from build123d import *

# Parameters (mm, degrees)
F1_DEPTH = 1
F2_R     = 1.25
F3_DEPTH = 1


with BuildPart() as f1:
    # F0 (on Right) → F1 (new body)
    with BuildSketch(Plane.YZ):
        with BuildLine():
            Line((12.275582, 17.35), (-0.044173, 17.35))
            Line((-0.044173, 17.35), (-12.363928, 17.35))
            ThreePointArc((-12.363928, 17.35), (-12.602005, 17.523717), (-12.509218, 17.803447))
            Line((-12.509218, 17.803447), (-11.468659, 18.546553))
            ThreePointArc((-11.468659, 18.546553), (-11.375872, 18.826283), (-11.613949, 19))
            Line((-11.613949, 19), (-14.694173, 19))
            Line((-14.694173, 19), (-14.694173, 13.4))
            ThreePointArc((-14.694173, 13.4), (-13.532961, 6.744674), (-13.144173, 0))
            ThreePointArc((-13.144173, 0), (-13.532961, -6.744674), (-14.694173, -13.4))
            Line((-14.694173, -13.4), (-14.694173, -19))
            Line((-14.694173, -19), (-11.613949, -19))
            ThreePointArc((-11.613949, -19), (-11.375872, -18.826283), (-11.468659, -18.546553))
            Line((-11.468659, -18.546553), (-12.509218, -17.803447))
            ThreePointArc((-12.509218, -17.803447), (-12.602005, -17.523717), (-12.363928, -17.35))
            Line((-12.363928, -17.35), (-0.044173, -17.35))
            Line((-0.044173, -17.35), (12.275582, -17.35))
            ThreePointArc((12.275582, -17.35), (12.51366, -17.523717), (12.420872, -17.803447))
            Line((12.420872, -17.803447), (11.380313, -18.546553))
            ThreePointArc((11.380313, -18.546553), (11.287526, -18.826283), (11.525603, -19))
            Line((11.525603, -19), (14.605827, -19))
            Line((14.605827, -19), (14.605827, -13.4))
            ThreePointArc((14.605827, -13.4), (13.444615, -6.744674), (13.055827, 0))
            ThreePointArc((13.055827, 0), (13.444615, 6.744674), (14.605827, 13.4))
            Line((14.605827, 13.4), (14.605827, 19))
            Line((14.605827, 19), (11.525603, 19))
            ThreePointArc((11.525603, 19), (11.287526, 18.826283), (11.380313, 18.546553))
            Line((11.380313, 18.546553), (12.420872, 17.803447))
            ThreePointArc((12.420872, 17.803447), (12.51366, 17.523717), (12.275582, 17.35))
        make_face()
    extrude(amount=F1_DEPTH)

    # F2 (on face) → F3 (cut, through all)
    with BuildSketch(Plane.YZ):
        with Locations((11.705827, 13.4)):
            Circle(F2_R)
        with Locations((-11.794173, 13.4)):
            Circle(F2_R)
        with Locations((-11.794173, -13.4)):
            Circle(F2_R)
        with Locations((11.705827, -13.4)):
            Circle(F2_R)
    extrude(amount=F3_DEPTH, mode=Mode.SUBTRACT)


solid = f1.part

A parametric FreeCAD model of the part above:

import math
import FreeCAD as App
import Part
import Sketcher
from FreeCAD import Vector
Q = App.Units.Quantity

doc = App.newDocument("Part")
body = doc.addObject("PartDesign::Body", "Body")

# Sketch on YZ plane
sketch1 = doc.addObject("Sketcher::SketchObject", "Sketch")
body.addObject(sketch1)
sketch1.AttachmentSupport = (doc.YZ_Plane, [""])
sketch1.MapMode = "FlatFace"
sketch1.addGeometry([
    Part.LineSegment(Vector(12.275582, 17.35, 0), Vector(-12.363928, 17.35, 0)),  # 0
    Part.ArcOfCircle(Part.Circle(Vector(-12.363927, 17.6, 0), Vector(0, 0, 1), 0.25), math.radians(125.532319), math.radians(269.999878)),  # 1
    Part.LineSegment(Vector(-12.509218, 17.803447, 0), Vector(-11.468659, 18.546553, 0)),  # 2
    Part.ArcOfCircle(Part.Circle(Vector(-11.61395, 18.75, 0), Vector(0, 0, 1), 0.25), math.radians(-54.467681), math.radians(89.999878)),  # 3
    Part.LineSegment(Vector(-11.613949, 19, 0), Vector(-14.694173, 19, 0)),  # 4
    Part.LineSegment(Vector(-14.694173, 19, 0), Vector(-14.694173, 13.4, 0)),  # 5
    Part.ArcOfCircle(Part.Circle(Vector(-71.841813, -0.000007, 0), Vector(0, 0, 1), 58.69764), math.radians(0.000007), math.radians(13.19634)),  # 6
    Part.ArcOfCircle(Part.Circle(Vector(-71.841813, 0.000007, 0), Vector(0, 0, 1), 58.69764), math.radians(-13.19634), math.radians(-0.000007)),  # 7
    Part.LineSegment(Vector(-14.694173, -13.4, 0), Vector(-14.694173, -19, 0)),  # 8
    Part.LineSegment(Vector(-14.694173, -19, 0), Vector(-11.613949, -19, 0)),  # 9
    Part.ArcOfCircle(Part.Circle(Vector(-11.61395, -18.75, 0), Vector(0, 0, 1), 0.25), math.radians(-89.999878), math.radians(54.467681)),  # 10
    Part.LineSegment(Vector(-11.468659, -18.546553, 0), Vector(-12.509218, -17.803447, 0)),  # 11
    Part.ArcOfCircle(Part.Circle(Vector(-12.363927, -17.6, 0), Vector(0, 0, 1), 0.25), math.radians(90.000122), math.radians(234.467681)),  # 12
    Part.LineSegment(Vector(-12.363928, -17.35, 0), Vector(12.275582, -17.35, 0)),  # 13
    Part.ArcOfCircle(Part.Circle(Vector(12.275583, -17.6, 0), Vector(0, 0, 1), 0.25), math.radians(-54.46798), math.radians(90.000177)),  # 14
    Part.LineSegment(Vector(12.420872, -17.803447, 0), Vector(11.380313, -18.546553, 0)),  # 15
    Part.ArcOfCircle(Part.Circle(Vector(11.525604, -18.75, 0), Vector(0, 0, 1), 0.25), math.radians(125.532319), math.radians(269.999878)),  # 16
    Part.LineSegment(Vector(11.525603, -19, 0), Vector(14.605827, -19, 0)),  # 17
    Part.LineSegment(Vector(14.605827, -19, 0), Vector(14.605827, -13.4, 0)),  # 18
    Part.ArcOfCircle(Part.Circle(Vector(71.753467, 0.000007, 0), Vector(0, 0, 1), 58.69764), math.radians(-179.999993), math.radians(-166.80366)),  # 19
    Part.ArcOfCircle(Part.Circle(Vector(71.753467, -0.000007, 0), Vector(0, 0, 1), 58.69764), math.radians(166.80366), math.radians(179.999993)),  # 20
    Part.LineSegment(Vector(14.605827, 13.4, 0), Vector(14.605827, 19, 0)),  # 21
    Part.LineSegment(Vector(14.605827, 19, 0), Vector(11.525603, 19, 0)),  # 22
    Part.ArcOfCircle(Part.Circle(Vector(11.525604, 18.75, 0), Vector(0, 0, 1), 0.25), math.radians(90.000122), math.radians(234.467681)),  # 23
    Part.LineSegment(Vector(11.380313, 18.546553, 0), Vector(12.420872, 17.803447, 0)),  # 24
    Part.ArcOfCircle(Part.Circle(Vector(12.275583, 17.6, 0), Vector(0, 0, 1), 0.25), math.radians(-90.000177), math.radians(54.46798)),  # 25
], False)
sketch1.addConstraint([
    Sketcher.Constraint("Coincident", 0, 2, 1, 2),
    Sketcher.Constraint("Coincident", 1, 1, 2, 1),
    Sketcher.Constraint("Coincident", 2, 2, 3, 1),
    Sketcher.Constraint("Coincident", 3, 2, 4, 1),
    Sketcher.Constraint("Coincident", 4, 2, 5, 1),
    Sketcher.Constraint("Coincident", 5, 2, 6, 2),
    Sketcher.Constraint("Tangent", 6, 1, 7, 2),
    Sketcher.Constraint("Coincident", 7, 1, 8, 1),
    Sketcher.Constraint("Coincident", 8, 2, 9, 1),
    Sketcher.Constraint("Coincident", 9, 2, 10, 1),
    Sketcher.Constraint("Coincident", 10, 2, 11, 1),
    Sketcher.Constraint("Coincident", 11, 2, 12, 2),
    Sketcher.Constraint("Coincident", 12, 1, 13, 1),
    Sketcher.Constraint("Coincident", 13, 2, 14, 2),
    Sketcher.Constraint("Coincident", 14, 1, 15, 1),
    Sketcher.Constraint("Coincident", 15, 2, 16, 1),
    Sketcher.Constraint("Coincident", 16, 2, 17, 1),
    Sketcher.Constraint("Coincident", 17, 2, 18, 1),
    Sketcher.Constraint("Coincident", 18, 2, 19, 2),
    Sketcher.Constraint("Tangent", 19, 1, 20, 2),
    Sketcher.Constraint("Coincident", 20, 1, 21, 1),
    Sketcher.Constraint("Coincident", 21, 2, 22, 1),
    Sketcher.Constraint("Coincident", 22, 2, 23, 1),
    Sketcher.Constraint("Coincident", 23, 2, 24, 1),
    Sketcher.Constraint("Coincident", 24, 2, 25, 2),
    Sketcher.Constraint("Coincident", 25, 1, 0, 1),
    Sketcher.Constraint("Horizontal", 0),
    Sketcher.Constraint("Horizontal", 4),
    Sketcher.Constraint("Vertical", 5),
    Sketcher.Constraint("Vertical", 8),
    Sketcher.Constraint("Horizontal", 9),
    Sketcher.Constraint("Horizontal", 13),
    Sketcher.Constraint("Horizontal", 17),
    Sketcher.Constraint("Vertical", 18),
    Sketcher.Constraint("Vertical", 21),
    Sketcher.Constraint("Horizontal", 22),
    Sketcher.Constraint("Equal", 1, 3),
    Sketcher.Constraint("Equal", 6, 7),
    Sketcher.Constraint("Equal", 3, 10),
    Sketcher.Constraint("Equal", 10, 12),
    Sketcher.Constraint("Equal", 12, 14),
    Sketcher.Constraint("Equal", 14, 16),
    Sketcher.Constraint("Equal", 7, 19),
    Sketcher.Constraint("Equal", 19, 20),
    Sketcher.Constraint("Equal", 16, 23),
    Sketcher.Constraint("Equal", 23, 25),
    Sketcher.Constraint("Symmetric", 3, 3, 10, 3, -1),
    Sketcher.Constraint("Symmetric", 1, 3, 12, 3, -1),
    Sketcher.Constraint("Symmetric", 16, 3, 23, 3, -1),
    Sketcher.Constraint("Symmetric", 5, 2, 7, 1, -1),
    Sketcher.Constraint("Symmetric", 18, 2, 20, 1, -1),
    Sketcher.Constraint("Symmetric", 14, 1, 24, 2, -1),
    Sketcher.Constraint("PointOnObject", 6, 1, -1),
    Sketcher.Constraint("PointOnObject", 19, 1, -1),
    Sketcher.Constraint("Parallel", 2, 15),
    Sketcher.Constraint("Horizontal", 10, 3, 16, 3),
    Sketcher.Constraint("Horizontal", 11, 2, 14, 1),
    Sketcher.Constraint("Horizontal", 10, 2, 15, 2),
    Sketcher.Constraint("Horizontal", 7, 1, 18, 2),
    Sketcher.Constraint("Horizontal", 2, 2, 23, 2),
    Sketcher.Constraint("Horizontal", 1, 1, 24, 2),
    Sketcher.Constraint("Vertical", 12, 3, 0, 2),
    Sketcher.Constraint("Vertical", 10, 3, 3, 2),
    Sketcher.Constraint("Vertical", 3, 2, 9, 2),
    Sketcher.Constraint("Vertical", 2, 2, 10, 2),
    Sketcher.Constraint("Vertical", 0, 2, 12, 1),
    Sketcher.Constraint("Vertical", 25, 3, 13, 2),
    Sketcher.Constraint("Vertical", 23, 3, 16, 2),
    Sketcher.Constraint("Vertical", 16, 2, 22, 2),
    Sketcher.Constraint("Vertical", 13, 2, 25, 1),
    Sketcher.Constraint("Equal", 9, 17),
    Sketcher.Constraint("Radius", 1, Q("0.25 mm")),
    Sketcher.Constraint("DistanceY", 5, 2, 5, 1, Q("5.6 mm")),
    Sketcher.Constraint("DistanceY", -1, 1, 3, 2, Q("19 mm")),
    Sketcher.Constraint("DistanceY", -1, 1, 1, 3, Q("17.6 mm")),
    Sketcher.Constraint("Radius", 6, Q("58.69764 mm")),
    Sketcher.Constraint("DistanceX", 0, 2, 0, 1, Q("24.63951 mm")),
    Sketcher.Constraint("DistanceX", 1, 1, 25, 3, Q("24.784801 mm")),
    Sketcher.Constraint("Distance", 2, Q("1.278659 mm")),
    Sketcher.Constraint("DistanceX", 4, 2, 4, 1, Q("3.080224 mm")),
    Sketcher.Constraint("DistanceX", 3, 3, -1, 1, Q("11.61395 mm")),
    Sketcher.Constraint("DistanceX", 1, 1, -1, 1, Q("12.509218 mm")),
])
pad1 = doc.addObject("PartDesign::Pad", "Pad")
body.addObject(pad1)
pad1.Profile = sketch1
pad1.Length = 1

# Sketch on YZ plane
sketch2 = doc.addObject("Sketcher::SketchObject", "Sketch001")
body.addObject(sketch2)
sketch2.AttachmentSupport = (doc.YZ_Plane, [""])
sketch2.MapMode = "FlatFace"
sketch2.addGeometry([
    Part.Circle(Vector(11.705827, 13.4, 0), Vector(0, 0, 1), 1.25),
    Part.Circle(Vector(-11.794173, 13.4, 0), Vector(0, 0, 1), 1.25),
    Part.Circle(Vector(-11.794173, -13.4, 0), Vector(0, 0, 1), 1.25),
    Part.Circle(Vector(11.705827, -13.4, 0), Vector(0, 0, 1), 1.25),
], False)
sketch2.addConstraint([
    Sketcher.Constraint("Equal", 0, 1),
    Sketcher.Constraint("Equal", 1, 2),
    Sketcher.Constraint("Equal", 2, 3),
    Sketcher.Constraint("Symmetric", 1, 3, 2, 3, -1),
    Sketcher.Constraint("Symmetric", 0, 3, 3, 3, -1),
    Sketcher.Constraint("Horizontal", 0, 3, 1, 3),
    Sketcher.Constraint("Diameter", 0, Q("2.5 mm")),
    Sketcher.Constraint("DistanceY", -1, 1, 0, 3, Q("13.4 mm")),
    Sketcher.Constraint("DistanceX", 1, 3, 0, 3, Q("23.5 mm")),
    Sketcher.Constraint("DistanceX", -1, 1, 0, 3, Q("11.705827 mm")),
])
pocket1 = doc.addObject("PartDesign::Pocket", "Pocket")
body.addObject(pocket1)
pocket1.Profile = sketch2
pocket1.Type = "ThroughAll"
pocket1.Reversed = True

doc.recompute()
